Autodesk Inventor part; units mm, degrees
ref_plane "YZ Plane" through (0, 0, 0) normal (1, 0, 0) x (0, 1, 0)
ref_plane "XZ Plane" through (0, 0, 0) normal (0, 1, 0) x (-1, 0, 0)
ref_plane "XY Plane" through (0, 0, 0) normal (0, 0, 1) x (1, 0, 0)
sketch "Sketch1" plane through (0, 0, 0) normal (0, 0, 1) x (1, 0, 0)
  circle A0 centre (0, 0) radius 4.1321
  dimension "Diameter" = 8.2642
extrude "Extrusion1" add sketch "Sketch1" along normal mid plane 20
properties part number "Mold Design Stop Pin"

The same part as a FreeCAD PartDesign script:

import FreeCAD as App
import Part
import Sketcher
from FreeCAD import Vector

doc = App.newDocument("Part")
params = doc.addObject("Spreadsheet::Sheet", "Params")
for row, (alias, value) in enumerate([
    ("pad1_length", "20 mm"),
], start=1):
    params.set(f"A{row}", alias)
    params.set(f"B{row}", "=" + value)
    params.setAlias(f"B{row}", alias)

body = doc.addObject("PartDesign::Body", "Body")

# Sketch on XY plane
sketch1 = body.newObject("Sketcher::SketchObject", "Sketch")
sketch1.AttachmentSupport = (doc.getObject("XY_Plane"), [""])
sketch1.MapMode = "FlatFace"
sketch1.addGeometry(Part.Circle(Vector(0, 0, 0), Vector(0, 0, 1), 4.1), False)
sketch1.addConstraint(Sketcher.Constraint("Coincident", 0, 3, -1, 1))
sketch1.addConstraint(Sketcher.Constraint("Diameter", 0, 8.2642))
pad1 = body.newObject("PartDesign::Pad", "Pad")
pad1.Profile = sketch1
pad1.setExpression("Length", "Params.pad1_length")
pad1.Midplane = True

doc.recompute()
